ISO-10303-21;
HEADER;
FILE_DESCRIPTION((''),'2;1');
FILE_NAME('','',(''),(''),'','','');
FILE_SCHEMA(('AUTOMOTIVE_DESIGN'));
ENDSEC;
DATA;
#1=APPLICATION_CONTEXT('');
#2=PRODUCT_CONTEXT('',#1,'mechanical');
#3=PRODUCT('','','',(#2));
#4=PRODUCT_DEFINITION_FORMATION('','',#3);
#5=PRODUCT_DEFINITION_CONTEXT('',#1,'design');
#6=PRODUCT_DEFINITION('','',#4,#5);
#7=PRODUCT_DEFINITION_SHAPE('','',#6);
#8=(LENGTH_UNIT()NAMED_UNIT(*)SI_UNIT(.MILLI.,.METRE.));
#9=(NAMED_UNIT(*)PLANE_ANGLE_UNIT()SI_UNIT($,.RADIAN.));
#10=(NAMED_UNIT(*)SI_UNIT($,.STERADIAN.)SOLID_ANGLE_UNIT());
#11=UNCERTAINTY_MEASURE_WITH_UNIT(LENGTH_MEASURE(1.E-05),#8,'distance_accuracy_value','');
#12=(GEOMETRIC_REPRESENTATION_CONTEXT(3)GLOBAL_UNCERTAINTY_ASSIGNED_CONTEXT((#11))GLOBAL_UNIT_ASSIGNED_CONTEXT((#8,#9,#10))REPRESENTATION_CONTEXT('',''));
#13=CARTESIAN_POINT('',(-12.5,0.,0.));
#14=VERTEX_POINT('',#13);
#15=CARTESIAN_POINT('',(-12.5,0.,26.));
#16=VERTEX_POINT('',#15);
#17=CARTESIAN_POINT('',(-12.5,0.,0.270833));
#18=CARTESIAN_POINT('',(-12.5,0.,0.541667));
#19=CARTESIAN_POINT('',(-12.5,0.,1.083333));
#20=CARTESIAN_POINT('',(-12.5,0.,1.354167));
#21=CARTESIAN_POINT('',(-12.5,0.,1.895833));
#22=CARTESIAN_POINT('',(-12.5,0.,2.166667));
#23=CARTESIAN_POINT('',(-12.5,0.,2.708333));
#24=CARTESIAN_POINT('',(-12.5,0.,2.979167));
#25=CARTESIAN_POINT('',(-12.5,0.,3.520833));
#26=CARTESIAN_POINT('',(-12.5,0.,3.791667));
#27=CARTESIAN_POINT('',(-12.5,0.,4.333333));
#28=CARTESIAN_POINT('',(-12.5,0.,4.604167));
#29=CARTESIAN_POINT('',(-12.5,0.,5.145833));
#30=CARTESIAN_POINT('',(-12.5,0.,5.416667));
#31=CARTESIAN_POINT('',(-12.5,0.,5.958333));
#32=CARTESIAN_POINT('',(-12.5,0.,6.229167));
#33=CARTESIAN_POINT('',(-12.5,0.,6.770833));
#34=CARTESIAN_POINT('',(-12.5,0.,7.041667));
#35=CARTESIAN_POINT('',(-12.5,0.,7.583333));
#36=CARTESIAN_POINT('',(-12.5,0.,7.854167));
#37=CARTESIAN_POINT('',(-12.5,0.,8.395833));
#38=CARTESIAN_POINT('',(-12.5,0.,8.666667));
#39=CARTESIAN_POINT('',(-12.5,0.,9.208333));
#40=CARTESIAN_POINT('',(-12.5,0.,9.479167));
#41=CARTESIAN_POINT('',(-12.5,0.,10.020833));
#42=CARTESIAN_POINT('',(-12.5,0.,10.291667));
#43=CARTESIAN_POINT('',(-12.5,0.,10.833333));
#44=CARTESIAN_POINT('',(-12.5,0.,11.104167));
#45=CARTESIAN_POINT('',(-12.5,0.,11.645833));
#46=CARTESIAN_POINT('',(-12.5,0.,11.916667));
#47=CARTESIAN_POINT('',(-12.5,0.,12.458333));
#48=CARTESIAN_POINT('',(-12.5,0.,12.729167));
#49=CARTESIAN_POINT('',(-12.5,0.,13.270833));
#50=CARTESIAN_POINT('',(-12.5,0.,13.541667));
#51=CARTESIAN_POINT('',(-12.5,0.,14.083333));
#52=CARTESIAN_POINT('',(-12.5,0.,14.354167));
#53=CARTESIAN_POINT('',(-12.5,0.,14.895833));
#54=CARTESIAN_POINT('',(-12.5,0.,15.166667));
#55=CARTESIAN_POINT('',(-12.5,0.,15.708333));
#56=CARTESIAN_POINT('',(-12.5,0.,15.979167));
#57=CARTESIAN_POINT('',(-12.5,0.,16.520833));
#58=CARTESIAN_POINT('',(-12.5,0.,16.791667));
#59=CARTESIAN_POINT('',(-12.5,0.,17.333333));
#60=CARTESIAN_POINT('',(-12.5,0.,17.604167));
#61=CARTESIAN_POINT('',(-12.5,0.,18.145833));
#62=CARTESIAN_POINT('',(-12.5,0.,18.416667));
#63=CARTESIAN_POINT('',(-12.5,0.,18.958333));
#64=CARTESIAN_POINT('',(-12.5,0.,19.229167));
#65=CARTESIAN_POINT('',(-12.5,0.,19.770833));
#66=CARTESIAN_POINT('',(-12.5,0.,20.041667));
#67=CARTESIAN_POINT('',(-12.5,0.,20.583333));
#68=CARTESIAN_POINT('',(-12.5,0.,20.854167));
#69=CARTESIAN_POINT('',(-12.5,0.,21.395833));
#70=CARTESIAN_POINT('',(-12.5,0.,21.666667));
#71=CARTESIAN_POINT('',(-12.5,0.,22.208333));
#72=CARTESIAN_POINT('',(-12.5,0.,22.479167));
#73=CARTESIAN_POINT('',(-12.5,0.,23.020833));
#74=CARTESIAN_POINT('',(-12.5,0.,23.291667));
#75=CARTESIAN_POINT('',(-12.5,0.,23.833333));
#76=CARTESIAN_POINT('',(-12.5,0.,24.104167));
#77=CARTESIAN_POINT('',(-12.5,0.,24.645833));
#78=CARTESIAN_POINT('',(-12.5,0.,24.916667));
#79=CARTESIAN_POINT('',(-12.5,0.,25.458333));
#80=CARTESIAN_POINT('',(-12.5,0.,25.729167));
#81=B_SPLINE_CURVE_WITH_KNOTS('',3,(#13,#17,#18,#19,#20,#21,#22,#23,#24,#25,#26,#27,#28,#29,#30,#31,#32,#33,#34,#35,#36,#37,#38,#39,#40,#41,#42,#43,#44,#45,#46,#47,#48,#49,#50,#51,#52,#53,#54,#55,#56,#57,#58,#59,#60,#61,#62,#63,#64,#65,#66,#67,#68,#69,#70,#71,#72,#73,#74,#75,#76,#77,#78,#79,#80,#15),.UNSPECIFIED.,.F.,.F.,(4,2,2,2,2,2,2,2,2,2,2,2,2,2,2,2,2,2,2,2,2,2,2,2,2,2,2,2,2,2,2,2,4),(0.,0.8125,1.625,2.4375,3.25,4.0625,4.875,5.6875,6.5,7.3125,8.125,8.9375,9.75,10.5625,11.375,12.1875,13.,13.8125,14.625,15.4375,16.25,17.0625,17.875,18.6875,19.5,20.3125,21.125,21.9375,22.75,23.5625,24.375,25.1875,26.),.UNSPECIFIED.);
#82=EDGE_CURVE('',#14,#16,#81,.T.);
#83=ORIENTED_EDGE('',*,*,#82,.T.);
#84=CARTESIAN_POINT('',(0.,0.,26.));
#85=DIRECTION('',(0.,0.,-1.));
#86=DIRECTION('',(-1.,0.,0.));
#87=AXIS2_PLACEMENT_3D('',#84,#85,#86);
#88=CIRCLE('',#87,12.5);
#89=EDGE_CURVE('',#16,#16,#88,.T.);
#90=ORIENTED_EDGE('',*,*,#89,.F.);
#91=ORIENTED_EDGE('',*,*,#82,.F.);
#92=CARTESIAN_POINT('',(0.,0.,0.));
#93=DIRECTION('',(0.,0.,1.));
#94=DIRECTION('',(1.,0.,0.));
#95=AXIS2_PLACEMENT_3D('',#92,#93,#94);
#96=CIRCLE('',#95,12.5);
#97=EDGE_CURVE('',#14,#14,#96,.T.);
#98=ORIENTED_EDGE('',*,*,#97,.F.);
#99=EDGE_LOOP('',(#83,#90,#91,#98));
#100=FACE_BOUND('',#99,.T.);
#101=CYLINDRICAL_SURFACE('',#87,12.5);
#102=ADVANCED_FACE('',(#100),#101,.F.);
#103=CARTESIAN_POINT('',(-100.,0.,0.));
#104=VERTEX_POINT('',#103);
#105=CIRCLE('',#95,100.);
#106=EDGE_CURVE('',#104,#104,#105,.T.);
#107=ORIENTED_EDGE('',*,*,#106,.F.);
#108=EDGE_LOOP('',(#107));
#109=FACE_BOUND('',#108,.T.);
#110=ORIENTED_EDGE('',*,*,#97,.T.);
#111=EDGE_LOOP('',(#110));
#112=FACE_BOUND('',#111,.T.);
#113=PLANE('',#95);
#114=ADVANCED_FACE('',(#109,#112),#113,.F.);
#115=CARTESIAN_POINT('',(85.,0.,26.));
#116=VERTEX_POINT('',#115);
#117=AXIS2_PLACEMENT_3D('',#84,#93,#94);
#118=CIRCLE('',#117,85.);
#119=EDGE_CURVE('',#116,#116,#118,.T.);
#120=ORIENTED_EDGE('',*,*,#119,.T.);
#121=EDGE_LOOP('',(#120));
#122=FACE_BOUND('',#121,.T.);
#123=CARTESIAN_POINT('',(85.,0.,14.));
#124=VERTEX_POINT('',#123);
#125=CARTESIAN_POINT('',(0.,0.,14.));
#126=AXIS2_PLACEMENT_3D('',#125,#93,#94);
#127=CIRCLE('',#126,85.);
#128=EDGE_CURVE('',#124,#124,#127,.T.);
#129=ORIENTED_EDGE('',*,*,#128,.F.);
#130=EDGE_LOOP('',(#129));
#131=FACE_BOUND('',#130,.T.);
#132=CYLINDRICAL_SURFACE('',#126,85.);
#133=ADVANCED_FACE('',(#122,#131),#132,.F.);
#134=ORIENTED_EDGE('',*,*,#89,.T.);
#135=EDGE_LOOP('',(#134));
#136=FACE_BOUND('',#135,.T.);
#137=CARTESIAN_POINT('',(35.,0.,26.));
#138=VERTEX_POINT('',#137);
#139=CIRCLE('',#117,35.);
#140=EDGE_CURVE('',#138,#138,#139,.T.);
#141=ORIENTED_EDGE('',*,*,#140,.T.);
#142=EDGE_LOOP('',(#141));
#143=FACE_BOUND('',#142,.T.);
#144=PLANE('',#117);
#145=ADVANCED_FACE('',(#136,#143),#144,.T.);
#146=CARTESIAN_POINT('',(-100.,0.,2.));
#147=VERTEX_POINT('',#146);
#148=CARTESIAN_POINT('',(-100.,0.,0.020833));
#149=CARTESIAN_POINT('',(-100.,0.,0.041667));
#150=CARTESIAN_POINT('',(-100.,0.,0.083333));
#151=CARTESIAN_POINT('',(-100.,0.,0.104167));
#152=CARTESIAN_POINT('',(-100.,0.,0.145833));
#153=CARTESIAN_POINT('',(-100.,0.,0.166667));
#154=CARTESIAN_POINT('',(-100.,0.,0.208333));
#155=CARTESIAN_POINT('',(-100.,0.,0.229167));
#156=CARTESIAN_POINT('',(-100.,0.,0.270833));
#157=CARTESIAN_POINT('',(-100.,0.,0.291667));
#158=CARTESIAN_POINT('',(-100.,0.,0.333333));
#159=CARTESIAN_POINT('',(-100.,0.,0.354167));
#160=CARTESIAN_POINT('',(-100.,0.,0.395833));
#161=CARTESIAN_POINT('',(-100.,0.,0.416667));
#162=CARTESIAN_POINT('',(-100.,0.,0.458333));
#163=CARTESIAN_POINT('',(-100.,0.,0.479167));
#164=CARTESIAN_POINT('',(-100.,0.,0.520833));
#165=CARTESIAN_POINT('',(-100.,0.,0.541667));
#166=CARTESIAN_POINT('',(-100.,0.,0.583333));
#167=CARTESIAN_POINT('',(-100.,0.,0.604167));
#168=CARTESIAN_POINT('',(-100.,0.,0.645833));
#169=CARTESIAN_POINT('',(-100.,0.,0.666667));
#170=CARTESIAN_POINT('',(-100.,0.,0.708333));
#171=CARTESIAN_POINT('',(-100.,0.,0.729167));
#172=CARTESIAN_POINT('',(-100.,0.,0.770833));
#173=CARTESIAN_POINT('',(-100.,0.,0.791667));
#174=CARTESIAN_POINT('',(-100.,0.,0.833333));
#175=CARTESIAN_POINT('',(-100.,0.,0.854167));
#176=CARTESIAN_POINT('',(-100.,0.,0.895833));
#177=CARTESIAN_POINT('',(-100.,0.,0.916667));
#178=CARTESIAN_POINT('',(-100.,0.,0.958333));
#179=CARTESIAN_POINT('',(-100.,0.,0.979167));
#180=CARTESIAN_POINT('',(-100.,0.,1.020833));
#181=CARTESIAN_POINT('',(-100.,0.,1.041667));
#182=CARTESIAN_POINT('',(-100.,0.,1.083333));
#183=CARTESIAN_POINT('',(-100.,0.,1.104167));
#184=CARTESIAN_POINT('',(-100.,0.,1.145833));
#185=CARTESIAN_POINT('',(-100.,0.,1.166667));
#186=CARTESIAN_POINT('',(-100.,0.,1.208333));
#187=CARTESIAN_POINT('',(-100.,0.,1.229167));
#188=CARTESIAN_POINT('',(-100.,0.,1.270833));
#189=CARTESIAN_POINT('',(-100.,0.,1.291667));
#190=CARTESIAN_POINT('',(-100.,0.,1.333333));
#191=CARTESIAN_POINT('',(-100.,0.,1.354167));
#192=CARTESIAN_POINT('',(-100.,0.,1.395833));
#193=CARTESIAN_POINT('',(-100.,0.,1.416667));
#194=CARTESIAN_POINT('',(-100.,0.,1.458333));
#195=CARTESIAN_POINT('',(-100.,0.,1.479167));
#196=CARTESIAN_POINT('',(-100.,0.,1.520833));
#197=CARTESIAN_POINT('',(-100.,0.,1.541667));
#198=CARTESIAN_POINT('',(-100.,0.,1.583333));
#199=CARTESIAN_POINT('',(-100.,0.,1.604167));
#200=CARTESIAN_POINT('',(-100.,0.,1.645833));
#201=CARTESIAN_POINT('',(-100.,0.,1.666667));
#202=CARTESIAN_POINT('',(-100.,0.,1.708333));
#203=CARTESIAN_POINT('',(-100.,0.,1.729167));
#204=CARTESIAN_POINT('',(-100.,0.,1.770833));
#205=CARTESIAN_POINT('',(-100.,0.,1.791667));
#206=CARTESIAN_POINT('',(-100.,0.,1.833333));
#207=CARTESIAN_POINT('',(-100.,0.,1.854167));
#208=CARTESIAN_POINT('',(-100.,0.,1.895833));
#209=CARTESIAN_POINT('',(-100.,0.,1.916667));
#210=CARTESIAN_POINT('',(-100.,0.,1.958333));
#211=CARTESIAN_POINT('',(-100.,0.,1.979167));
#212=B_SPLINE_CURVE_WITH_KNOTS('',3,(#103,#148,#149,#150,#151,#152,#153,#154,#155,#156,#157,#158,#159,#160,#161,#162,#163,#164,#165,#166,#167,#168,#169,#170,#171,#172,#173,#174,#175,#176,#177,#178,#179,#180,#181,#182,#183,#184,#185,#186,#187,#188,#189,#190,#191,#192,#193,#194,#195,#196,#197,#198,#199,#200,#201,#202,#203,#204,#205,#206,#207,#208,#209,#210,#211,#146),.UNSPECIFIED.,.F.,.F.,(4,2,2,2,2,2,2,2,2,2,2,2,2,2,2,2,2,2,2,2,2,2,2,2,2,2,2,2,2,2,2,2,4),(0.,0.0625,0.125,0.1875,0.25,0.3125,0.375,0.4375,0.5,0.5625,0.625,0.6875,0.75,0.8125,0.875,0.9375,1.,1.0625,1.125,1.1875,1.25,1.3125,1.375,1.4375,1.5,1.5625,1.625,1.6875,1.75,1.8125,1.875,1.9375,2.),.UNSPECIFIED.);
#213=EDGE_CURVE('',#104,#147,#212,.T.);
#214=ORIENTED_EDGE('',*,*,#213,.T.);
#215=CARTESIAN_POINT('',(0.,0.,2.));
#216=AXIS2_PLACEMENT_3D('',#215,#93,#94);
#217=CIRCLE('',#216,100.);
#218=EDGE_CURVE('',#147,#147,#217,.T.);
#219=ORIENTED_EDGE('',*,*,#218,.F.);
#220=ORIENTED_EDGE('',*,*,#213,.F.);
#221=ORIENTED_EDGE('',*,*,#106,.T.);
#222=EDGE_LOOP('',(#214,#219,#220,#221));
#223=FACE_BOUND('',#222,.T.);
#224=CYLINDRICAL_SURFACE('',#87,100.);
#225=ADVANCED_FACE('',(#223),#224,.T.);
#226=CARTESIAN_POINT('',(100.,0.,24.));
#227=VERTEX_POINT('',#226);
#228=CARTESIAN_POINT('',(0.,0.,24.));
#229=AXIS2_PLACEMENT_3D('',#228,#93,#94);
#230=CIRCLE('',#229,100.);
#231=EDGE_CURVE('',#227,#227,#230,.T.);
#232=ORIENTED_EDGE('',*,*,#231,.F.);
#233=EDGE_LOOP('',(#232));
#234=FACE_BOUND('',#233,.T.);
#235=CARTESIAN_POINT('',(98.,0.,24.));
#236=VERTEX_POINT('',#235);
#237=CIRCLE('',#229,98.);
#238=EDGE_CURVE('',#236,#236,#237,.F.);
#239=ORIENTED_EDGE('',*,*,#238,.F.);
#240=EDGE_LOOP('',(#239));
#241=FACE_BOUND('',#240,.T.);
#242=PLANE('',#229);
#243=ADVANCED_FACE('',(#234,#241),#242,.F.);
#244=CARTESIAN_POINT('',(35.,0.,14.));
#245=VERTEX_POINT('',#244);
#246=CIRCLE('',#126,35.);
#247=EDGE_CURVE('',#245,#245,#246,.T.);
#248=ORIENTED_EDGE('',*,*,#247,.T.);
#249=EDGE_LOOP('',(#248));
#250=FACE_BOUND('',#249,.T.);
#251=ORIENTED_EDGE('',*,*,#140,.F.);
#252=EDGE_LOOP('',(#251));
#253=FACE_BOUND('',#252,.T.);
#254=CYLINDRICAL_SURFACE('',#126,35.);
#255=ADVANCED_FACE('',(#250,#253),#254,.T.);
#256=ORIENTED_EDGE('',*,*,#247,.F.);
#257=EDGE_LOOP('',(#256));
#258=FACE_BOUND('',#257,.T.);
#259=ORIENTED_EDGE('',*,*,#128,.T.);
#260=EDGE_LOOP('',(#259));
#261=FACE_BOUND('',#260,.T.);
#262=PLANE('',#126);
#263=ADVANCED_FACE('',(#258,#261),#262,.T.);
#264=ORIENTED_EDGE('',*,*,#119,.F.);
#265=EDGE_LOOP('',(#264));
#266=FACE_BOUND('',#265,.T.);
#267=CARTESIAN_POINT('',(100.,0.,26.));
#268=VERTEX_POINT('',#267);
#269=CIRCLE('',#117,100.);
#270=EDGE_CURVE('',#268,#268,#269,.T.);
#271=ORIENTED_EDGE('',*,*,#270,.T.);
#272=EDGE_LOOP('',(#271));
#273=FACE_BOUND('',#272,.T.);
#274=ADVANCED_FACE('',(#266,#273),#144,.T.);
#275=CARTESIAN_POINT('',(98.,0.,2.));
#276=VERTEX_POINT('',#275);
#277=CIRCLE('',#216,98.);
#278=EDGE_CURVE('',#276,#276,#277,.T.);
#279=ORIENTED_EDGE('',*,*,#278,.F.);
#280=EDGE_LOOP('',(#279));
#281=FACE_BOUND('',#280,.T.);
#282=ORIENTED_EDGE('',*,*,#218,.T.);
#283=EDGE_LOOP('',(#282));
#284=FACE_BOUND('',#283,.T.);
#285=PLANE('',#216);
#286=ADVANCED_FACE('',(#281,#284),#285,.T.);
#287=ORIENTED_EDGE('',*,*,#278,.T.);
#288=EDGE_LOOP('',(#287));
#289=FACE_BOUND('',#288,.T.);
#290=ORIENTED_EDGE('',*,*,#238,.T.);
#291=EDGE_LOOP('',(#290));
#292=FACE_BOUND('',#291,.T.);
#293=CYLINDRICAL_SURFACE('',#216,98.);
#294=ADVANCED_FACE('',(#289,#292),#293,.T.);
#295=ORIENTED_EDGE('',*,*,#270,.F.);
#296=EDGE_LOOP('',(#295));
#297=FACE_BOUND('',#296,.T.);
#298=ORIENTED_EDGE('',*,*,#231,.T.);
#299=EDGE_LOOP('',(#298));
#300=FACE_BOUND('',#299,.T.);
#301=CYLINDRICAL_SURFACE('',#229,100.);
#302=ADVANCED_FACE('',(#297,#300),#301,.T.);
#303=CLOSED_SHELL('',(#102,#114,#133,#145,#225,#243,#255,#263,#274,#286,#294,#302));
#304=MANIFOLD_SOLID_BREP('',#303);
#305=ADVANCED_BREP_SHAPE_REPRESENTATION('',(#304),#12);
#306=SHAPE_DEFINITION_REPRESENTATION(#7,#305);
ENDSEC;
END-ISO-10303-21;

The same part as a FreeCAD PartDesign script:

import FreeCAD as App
import Part
import Sketcher


def add_polygon(sketch, points):
    """Adds a closed chain of lines whose ends are joined by coincident constraints."""
    first, n = sketch.GeometryCount, len(points)
    for a, b in zip(points, points[1:] + points[:1]):
        sketch.addGeometry(Part.LineSegment(App.Vector(*a, 0), App.Vector(*b, 0)), False)
    for i in range(n):
        sketch.addConstraint(Sketcher.Constraint("Coincident", first + i, 2, first + (i + 1) % n, 1))

doc = App.newDocument("Part")
body = doc.addObject("PartDesign::Body", "Body")

sketch1 = doc.addObject("Sketcher::SketchObject", "Sketch")
body.addObject(sketch1)
sketch1.AttachmentSupport = (doc.XY_Plane, [""])
sketch1.MapMode = "FlatFace"
sketch1.addGeometry([
    Part.Circle(App.Vector(0, 0, 0), App.Vector(0, 0, 1), 100),
    Part.Circle(App.Vector(0, 0, 0), App.Vector(0, 0, 1), 12),
], False)
sketch1.addConstraint([
    Sketcher.Constraint("Coincident", 0, 3, -1, 1),
    Sketcher.Constraint("Coincident", 1, 3, -1, 1),
    Sketcher.Constraint("Diameter", 0, 200.0),
    Sketcher.Constraint("Diameter", 1, 25.0),
])
pad1 = doc.addObject("PartDesign::Pad", "Pad")
body.addObject(pad1)
pad1.Profile = sketch1
pad1.Length = 26

sketch2 = doc.addObject("Sketcher::SketchObject", "Sketch001")
body.addObject(sketch2)
sketch2.AttachmentSupport = (doc.XY_Plane, [""])
sketch2.MapMode = "FlatFace"
sketch2.AttachmentOffset = App.Placement(App.Vector(0, 0, 26), App.Rotation())
add_polygon(sketch2, [(-129, 129), (-129, -129), (129, -129), (129, 129)])
sketch2.addGeometry(Part.Circle(App.Vector(0, 0, 0), App.Vector(0, 0, 1), 98), False)
sketch2.addConstraint([
    Sketcher.Constraint("Vertical", 0),
    Sketcher.Constraint("Horizontal", 1),
    Sketcher.Constraint("Vertical", 2),
    Sketcher.Constraint("Horizontal", 3),
    Sketcher.Constraint("Coincident", 4, 3, -1, 1),
    Sketcher.Constraint("Symmetric", 0, 2, 2, 2, -1, 1),
    Sketcher.Constraint("Equal", 3, 0),
    Sketcher.Constraint("Diameter", 4, 196.0),
    Sketcher.Constraint("DistanceX", 1, 1, 1, 2, 258.808),
])
pocket1 = doc.addObject("PartDesign::Pocket", "Pocket")
body.addObject(pocket1)
pocket1.Profile = sketch2
pocket1.Length = 24

sketch3 = doc.addObject("Sketcher::SketchObject", "Sketch002")
body.addObject(sketch3)
sketch3.AttachmentSupport = (doc.XY_Plane, [""])
sketch3.MapMode = "FlatFace"
sketch3.AttachmentOffset = App.Placement(App.Vector(0, 0, 24), App.Rotation())
sketch3.addGeometry(Part.Circle(App.Vector(0, 0, 0), App.Vector(0, 0, 1), 100), False)
sketch3.addConstraint([
    Sketcher.Constraint("Coincident", 0, 3, -1, 1),
    Sketcher.Constraint("Diameter", 0, 200.0),
])
pad2 = doc.addObject("PartDesign::Pad", "Pad001")
body.addObject(pad2)
pad2.Profile = sketch3
pad2.Length = 2

sketch4 = doc.addObject("Sketcher::SketchObject", "Sketch003")
body.addObject(sketch4)
sketch4.AttachmentSupport = (doc.XY_Plane, [""])
sketch4.MapMode = "FlatFace"
sketch4.addGeometry(Part.Circle(App.Vector(0, 0, 0), App.Vector(0, 0, 1), 12), False)
sketch4.addConstraint([
    Sketcher.Constraint("Coincident", 0, 3, -1, 1),
    Sketcher.Constraint("Diameter", 0, 25.0),
])
pocket2 = doc.addObject("PartDesign::Pocket", "Pocket001")
body.addObject(pocket2)
pocket2.Profile = sketch4
pocket2.Type = "ThroughAll"
pocket2.Reversed = True

sketch5 = doc.addObject("Sketcher::SketchObject", "Sketch004")
body.addObject(sketch5)
sketch5.AttachmentSupport = (doc.XY_Plane, [""])
sketch5.MapMode = "FlatFace"
sketch5.AttachmentOffset = App.Placement(App.Vector(0, 0, 26), App.Rotation())
sketch5.addGeometry([
    Part.Circle(App.Vector(0, 0, 0), App.Vector(0, 0, 1), 85),
    Part.Circle(App.Vector(0, 0, 0), App.Vector(0, 0, 1), 35),
], False)
sketch5.addConstraint([
    Sketcher.Constraint("Coincident", 0, 3, -1, 1),
    Sketcher.Constraint("Coincident", 1, 3, -1, 1),
    Sketcher.Constraint("Diameter", 0, 170.0),
    Sketcher.Constraint("Diameter", 1, 70.0),
])
pocket3 = doc.addObject("PartDesign::Pocket", "Pocket002")
body.addObject(pocket3)
pocket3.Profile = sketch5
pocket3.Length = 12

doc.recompute()
